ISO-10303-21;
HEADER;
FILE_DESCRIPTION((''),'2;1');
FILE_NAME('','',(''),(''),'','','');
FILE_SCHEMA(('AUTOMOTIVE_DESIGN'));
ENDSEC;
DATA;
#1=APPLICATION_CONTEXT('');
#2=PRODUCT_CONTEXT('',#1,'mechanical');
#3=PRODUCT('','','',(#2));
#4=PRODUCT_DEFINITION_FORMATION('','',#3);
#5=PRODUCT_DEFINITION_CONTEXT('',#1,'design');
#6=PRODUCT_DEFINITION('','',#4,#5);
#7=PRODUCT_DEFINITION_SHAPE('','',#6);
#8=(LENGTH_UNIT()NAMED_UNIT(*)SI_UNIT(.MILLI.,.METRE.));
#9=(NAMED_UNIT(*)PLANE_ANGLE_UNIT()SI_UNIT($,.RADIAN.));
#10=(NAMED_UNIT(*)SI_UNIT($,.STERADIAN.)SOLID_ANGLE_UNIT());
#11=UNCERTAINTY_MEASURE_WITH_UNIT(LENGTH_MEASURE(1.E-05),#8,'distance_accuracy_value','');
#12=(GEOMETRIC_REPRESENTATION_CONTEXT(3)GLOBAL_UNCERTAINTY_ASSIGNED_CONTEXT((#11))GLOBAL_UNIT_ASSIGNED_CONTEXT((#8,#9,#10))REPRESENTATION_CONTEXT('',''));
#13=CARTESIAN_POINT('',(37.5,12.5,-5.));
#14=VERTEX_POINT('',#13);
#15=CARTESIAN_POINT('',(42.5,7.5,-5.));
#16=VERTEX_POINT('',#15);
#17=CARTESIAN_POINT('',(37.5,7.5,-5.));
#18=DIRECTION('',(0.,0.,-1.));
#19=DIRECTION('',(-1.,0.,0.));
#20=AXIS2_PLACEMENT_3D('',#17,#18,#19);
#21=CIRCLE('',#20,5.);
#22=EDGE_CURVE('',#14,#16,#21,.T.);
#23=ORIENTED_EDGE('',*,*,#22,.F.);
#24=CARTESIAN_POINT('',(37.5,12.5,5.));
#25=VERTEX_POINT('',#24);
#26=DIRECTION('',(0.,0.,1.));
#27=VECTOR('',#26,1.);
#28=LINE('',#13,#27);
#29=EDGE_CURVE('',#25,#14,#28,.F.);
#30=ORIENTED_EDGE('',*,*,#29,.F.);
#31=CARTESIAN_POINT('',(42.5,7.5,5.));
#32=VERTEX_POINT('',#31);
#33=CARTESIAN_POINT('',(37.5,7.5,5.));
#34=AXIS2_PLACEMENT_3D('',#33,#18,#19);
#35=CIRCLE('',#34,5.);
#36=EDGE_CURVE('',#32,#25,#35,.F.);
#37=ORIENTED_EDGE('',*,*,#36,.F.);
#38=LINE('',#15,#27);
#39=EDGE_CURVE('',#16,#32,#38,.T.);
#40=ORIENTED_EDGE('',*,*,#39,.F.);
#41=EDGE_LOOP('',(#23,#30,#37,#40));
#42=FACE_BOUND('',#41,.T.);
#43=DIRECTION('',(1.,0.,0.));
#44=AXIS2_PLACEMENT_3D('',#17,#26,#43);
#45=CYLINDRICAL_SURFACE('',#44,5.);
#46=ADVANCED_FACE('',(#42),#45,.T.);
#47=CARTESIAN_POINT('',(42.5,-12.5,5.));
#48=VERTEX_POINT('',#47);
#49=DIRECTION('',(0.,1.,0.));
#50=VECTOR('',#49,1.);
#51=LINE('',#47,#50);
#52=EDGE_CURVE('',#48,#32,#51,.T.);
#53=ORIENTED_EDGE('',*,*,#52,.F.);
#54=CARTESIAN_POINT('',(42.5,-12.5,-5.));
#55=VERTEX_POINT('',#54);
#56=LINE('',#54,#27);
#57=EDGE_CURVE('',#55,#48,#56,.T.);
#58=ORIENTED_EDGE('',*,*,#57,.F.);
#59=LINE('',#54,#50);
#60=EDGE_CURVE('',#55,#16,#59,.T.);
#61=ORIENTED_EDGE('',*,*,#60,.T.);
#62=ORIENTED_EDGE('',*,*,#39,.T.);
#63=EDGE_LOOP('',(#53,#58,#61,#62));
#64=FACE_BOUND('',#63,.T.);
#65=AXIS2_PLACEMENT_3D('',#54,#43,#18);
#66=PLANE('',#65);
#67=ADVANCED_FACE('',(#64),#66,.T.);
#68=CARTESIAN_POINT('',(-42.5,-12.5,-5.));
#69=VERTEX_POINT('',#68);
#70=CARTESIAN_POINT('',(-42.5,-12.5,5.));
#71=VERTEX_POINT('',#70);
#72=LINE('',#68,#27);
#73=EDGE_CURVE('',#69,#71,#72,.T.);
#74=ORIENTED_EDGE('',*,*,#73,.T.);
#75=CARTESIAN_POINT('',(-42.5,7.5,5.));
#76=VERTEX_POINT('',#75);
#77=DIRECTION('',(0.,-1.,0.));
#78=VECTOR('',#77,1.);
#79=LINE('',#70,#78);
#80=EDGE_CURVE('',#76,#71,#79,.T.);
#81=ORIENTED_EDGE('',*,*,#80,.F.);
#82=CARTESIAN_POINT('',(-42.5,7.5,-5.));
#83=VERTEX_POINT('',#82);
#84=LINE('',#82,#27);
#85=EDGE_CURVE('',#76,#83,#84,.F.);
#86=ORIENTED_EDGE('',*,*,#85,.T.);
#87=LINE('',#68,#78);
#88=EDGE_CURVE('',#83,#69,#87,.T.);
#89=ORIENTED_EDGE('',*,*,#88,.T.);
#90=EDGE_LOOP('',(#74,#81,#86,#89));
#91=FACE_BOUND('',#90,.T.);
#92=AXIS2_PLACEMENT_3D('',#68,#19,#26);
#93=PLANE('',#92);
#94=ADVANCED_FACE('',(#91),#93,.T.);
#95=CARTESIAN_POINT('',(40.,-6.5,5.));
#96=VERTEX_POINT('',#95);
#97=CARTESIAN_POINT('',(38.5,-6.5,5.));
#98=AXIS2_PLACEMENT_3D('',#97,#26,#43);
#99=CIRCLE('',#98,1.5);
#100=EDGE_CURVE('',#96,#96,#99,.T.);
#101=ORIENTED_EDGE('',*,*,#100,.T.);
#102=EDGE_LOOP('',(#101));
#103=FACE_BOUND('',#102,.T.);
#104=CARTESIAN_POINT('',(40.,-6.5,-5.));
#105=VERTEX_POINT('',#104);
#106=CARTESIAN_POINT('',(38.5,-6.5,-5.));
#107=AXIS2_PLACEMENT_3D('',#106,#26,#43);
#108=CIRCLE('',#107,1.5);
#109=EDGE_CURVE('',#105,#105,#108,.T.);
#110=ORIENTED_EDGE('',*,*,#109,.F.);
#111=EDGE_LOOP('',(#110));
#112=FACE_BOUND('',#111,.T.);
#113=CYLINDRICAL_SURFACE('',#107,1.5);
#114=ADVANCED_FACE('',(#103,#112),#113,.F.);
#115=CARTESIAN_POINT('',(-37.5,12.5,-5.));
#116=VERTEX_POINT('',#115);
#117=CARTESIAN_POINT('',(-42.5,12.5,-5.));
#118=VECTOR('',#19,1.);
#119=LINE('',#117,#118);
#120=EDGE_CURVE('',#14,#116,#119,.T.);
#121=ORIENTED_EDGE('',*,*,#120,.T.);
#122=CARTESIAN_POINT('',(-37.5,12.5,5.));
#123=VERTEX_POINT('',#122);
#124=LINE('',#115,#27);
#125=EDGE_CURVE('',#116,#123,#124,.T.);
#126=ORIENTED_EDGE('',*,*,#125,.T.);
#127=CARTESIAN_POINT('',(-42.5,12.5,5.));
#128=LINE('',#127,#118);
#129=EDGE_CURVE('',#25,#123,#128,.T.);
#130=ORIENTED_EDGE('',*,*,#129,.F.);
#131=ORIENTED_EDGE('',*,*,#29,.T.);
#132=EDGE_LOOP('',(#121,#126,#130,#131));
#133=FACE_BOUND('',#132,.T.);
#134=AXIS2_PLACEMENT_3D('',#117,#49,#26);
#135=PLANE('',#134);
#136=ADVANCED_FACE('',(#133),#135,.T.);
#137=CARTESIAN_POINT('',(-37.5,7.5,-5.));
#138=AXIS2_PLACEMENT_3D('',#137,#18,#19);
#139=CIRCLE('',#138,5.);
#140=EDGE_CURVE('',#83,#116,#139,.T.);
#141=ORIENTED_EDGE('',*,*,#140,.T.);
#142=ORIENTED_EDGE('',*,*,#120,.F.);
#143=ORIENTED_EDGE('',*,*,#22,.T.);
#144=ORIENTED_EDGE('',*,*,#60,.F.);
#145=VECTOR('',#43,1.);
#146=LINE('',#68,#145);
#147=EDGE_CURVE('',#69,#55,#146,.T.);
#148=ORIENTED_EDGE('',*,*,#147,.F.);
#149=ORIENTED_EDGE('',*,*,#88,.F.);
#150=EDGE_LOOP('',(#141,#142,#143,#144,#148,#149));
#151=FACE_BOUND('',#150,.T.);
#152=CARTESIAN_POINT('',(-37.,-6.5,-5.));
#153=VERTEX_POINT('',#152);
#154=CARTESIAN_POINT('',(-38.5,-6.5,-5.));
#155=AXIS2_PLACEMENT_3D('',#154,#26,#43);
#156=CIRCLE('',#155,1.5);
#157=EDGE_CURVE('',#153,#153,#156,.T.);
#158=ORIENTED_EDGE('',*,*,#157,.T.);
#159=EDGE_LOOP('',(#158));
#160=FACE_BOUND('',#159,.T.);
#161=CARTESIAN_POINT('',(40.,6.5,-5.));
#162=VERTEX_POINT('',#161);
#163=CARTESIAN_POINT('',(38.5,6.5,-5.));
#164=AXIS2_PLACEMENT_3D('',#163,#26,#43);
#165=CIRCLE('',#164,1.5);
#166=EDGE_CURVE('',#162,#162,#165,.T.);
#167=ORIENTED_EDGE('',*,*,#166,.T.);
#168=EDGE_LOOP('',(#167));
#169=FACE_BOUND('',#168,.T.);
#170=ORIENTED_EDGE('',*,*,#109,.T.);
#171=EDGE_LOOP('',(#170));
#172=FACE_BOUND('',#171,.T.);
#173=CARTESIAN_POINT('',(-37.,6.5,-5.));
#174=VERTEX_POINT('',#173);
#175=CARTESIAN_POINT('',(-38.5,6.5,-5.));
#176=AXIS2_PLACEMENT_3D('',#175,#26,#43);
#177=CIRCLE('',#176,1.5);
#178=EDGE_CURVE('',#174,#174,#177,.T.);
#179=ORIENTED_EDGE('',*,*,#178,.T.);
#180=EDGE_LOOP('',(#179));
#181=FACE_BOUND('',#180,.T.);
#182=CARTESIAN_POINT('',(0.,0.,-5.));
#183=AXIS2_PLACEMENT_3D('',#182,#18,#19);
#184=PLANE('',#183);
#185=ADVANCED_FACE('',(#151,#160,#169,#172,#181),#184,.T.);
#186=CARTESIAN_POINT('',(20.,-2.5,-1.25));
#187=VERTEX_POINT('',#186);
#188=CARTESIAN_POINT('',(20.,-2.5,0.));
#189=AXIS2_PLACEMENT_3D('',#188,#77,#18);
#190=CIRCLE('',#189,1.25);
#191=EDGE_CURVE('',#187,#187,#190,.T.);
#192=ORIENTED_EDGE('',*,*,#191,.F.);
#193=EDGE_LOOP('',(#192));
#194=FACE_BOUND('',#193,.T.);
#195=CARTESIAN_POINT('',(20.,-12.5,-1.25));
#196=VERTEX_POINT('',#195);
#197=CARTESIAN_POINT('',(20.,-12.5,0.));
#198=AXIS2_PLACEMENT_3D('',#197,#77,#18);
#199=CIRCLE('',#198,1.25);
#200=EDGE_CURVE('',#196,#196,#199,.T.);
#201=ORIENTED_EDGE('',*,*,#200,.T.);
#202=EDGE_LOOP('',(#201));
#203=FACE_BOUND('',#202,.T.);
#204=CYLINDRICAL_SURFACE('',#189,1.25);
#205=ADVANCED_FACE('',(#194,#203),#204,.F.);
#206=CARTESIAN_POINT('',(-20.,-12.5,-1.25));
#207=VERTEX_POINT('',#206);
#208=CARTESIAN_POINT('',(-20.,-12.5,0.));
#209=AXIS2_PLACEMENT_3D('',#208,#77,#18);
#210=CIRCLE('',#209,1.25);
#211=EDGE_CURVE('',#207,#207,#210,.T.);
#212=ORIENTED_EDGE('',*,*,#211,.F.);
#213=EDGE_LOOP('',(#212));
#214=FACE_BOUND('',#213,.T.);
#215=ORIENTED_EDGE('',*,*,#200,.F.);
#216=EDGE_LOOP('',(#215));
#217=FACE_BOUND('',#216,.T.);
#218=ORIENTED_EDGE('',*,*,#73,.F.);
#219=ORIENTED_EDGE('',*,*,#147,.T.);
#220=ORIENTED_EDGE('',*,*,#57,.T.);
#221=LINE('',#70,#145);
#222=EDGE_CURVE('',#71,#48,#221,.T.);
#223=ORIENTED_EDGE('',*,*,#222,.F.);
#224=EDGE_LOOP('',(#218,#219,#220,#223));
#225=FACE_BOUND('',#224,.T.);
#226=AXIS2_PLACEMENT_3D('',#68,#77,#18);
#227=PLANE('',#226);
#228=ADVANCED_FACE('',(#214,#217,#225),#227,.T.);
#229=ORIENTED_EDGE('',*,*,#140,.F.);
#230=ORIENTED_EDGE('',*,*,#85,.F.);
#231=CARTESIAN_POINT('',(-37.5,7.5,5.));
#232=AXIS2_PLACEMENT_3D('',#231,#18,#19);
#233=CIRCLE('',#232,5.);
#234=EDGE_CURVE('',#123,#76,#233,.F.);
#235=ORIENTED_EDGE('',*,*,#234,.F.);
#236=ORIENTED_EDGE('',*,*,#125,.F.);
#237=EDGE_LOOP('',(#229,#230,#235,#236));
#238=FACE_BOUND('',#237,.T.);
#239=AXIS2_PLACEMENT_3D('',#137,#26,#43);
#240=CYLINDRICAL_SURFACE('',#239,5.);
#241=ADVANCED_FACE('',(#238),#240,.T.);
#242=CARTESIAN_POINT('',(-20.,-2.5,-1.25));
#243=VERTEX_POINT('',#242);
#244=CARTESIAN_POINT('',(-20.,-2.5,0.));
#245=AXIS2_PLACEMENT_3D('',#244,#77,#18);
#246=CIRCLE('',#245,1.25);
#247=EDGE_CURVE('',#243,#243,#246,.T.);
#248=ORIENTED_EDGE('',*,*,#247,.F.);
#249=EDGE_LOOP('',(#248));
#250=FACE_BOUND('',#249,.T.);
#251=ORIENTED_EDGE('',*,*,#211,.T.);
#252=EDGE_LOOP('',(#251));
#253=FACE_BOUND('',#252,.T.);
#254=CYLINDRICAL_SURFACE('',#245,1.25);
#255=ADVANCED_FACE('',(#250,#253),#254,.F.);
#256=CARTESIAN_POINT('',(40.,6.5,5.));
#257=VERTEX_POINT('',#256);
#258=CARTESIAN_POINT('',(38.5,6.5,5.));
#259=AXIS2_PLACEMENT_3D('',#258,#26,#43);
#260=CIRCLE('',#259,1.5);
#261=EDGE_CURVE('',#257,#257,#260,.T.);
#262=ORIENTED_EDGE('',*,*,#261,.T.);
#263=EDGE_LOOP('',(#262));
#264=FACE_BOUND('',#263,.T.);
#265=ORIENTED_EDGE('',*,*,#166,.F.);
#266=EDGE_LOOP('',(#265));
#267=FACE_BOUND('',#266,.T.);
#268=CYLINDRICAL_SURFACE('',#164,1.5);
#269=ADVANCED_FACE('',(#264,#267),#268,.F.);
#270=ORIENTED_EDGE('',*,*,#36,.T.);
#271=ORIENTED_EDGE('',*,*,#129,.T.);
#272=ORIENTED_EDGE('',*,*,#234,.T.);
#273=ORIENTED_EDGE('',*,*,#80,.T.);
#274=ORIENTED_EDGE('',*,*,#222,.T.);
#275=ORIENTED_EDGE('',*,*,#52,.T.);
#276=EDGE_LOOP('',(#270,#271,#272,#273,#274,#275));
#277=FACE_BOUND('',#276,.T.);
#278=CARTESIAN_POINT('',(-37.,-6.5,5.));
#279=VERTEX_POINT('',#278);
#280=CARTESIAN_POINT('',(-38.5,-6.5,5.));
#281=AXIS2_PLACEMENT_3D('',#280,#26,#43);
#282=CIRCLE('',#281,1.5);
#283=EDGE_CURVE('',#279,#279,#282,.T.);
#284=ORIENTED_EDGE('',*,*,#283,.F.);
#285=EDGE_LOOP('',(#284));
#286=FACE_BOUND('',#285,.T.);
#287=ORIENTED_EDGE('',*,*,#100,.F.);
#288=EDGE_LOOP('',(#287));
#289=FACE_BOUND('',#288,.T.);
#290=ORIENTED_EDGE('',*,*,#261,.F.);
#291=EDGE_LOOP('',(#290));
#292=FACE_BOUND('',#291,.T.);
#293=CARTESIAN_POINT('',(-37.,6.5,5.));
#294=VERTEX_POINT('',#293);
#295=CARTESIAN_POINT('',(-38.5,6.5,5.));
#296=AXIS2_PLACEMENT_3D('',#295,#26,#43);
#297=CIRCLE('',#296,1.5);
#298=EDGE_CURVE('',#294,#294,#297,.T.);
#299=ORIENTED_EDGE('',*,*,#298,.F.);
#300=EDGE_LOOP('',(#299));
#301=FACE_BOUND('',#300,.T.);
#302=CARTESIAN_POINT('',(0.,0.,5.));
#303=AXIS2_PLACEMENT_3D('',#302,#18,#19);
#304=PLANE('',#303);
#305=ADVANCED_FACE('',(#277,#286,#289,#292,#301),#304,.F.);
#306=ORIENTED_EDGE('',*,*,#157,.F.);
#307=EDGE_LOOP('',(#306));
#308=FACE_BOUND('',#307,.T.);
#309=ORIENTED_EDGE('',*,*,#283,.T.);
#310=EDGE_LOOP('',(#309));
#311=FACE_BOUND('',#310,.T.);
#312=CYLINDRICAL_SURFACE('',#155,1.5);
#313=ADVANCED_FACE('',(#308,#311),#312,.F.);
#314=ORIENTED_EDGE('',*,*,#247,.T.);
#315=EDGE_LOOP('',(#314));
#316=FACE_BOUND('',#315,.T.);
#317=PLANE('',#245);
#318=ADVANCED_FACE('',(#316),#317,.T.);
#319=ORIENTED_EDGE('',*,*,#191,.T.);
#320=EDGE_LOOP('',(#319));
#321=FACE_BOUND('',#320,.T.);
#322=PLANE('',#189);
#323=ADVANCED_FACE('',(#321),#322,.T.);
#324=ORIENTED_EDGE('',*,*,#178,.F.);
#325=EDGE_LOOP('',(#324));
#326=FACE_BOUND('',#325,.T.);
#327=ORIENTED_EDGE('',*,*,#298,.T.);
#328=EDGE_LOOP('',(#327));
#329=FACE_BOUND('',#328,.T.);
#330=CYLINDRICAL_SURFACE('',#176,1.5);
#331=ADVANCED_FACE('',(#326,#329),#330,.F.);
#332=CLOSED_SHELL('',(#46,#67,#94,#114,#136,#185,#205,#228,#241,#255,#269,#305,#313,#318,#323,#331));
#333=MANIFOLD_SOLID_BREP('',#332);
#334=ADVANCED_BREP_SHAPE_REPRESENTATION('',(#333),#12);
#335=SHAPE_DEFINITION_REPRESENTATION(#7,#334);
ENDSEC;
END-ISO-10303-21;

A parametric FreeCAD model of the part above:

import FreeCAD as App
import Part
import Sketcher
Q = App.Units.Quantity


def edges_at(feature, points):
    """Names of the edges that pass closest to the given points."""
    edges = feature.Shape.Edges
    near = lambda p: min(range(len(edges)), key=lambda i: edges[i].distToShape(Part.Vertex(*p))[0])
    return sorted({f"Edge{near(p) + 1}" for p in points})

doc = App.newDocument("Part")
body = doc.addObject("PartDesign::Body", "Body")

sketch1 = body.newObject("Sketcher::SketchObject", "Sketch")
sketch1.AttachmentSupport = (doc.getObject("XY_Plane"), [""])
sketch1.MapMode = "FlatFace"
sketch1.addGeometry([
    Part.LineSegment(App.Vector(-42, 12, 0), App.Vector(-42, -12, 0)),
    Part.LineSegment(App.Vector(-42, -12, 0), App.Vector(42, -12, 0)),
    Part.LineSegment(App.Vector(42, -12, 0), App.Vector(42, 12, 0)),
    Part.LineSegment(App.Vector(42, 12, 0), App.Vector(-42, 12, 0)),
], False)
sketch1.addConstraint([
    Sketcher.Constraint("Coincident", 0, 2, 1, 1),
    Sketcher.Constraint("Coincident", 1, 2, 2, 1),
    Sketcher.Constraint("Coincident", 2, 2, 3, 1),
    Sketcher.Constraint("Coincident", 3, 2, 0, 1),
    Sketcher.Constraint("Vertical", 0),
    Sketcher.Constraint("Horizontal", 1),
    Sketcher.Constraint("Vertical", 2),
    Sketcher.Constraint("Horizontal", 3),
    Sketcher.Constraint("Symmetric", 0, 2, 2, 2, -1, 1),
    Sketcher.Constraint("DistanceX", 1, 1, 1, 2, Q("85 mm")),
    Sketcher.Constraint("DistanceY", 0, 2, 0, 1, Q("25 mm")),
])
pad1 = body.newObject("PartDesign::Pad", "Pad")
pad1.Profile = sketch1
pad1.Type = "TwoLengths"
pad1.Length = 5
pad1.Length2 = 5

sketch2 = body.newObject("Sketcher::SketchObject", "Sketch001")
sketch2.AttachmentSupport = (doc.getObject("XY_Plane"), [""])
sketch2.MapMode = "FlatFace"
sketch2.AttachmentOffset = App.Placement(App.Vector(0, 0, 5), App.Rotation())
sketch2.addGeometry([
    Part.Circle(App.Vector(-38.5, 6.5, 0), App.Vector(0, 0, 1), 1.5),
    Part.Circle(App.Vector(38.5, 6.5, 0), App.Vector(0, 0, 1), 1.5),
    Part.Circle(App.Vector(38.5, -6.5, 0), App.Vector(0, 0, 1), 1.5),
    Part.Circle(App.Vector(-38.5, -6.5, 0), App.Vector(0, 0, 1), 1.5),
], False)
sketch2.addConstraint([
    Sketcher.Constraint("Equal", 0, 1),
    Sketcher.Constraint("Equal", 1, 2),
    Sketcher.Constraint("Equal", 2, 3),
    Sketcher.Constraint("Symmetric", 0, 3, 2, 3, -1, 1),
    Sketcher.Constraint("Symmetric", 1, 3, 3, 3, -1, 1),
    Sketcher.Constraint("Symmetric", 0, 3, 1, 3, -2),
    Sketcher.Constraint("Diameter", 0, Q("3 mm")),
    Sketcher.Constraint("DistanceX", 0, 3, 1, 3, Q("77 mm")),
    Sketcher.Constraint("DistanceY", 2, 3, 1, 3, Q("13 mm")),
])
pocket1 = body.newObject("PartDesign::Pocket", "Pocket")
pocket1.Profile = sketch2
pocket1.Type = "ThroughAll"

sketch3 = body.newObject("Sketcher::SketchObject", "Sketch002")
sketch3.AttachmentSupport = (doc.getObject("XZ_Plane"), [""])
sketch3.MapMode = "FlatFace"
sketch3.AttachmentOffset = App.Placement(App.Vector(0, 0, 12.5), App.Rotation())
sketch3.addGeometry([
    Part.Circle(App.Vector(-20, 0, 0), App.Vector(0, 0, 1), 1.2),
    Part.Circle(App.Vector(20, 0, 0), App.Vector(0, 0, 1), 1.2),
], False)
sketch3.addConstraint([
    Sketcher.Constraint("Equal", 0, 1),
    Sketcher.Constraint("Symmetric", 0, 3, 1, 3, -1, 1),
    Sketcher.Constraint("PointOnObject", 0, 3, -1),
    Sketcher.Constraint("Diameter", 0, Q("2.5 mm")),
    Sketcher.Constraint("DistanceX", 0, 3, -1, 1, Q("20 mm")),
])
pocket2 = body.newObject("PartDesign::Pocket", "Pocket001")
pocket2.Profile = sketch3
pocket2.Length = 10
doc.recompute()

fillet = body.newObject("PartDesign::Fillet", "Fillet")
fillet.Base = (pocket2, edges_at(pocket2, [(-42.5, 12.5, 0), (42.5, 12.5, 0)]))
fillet.Radius = 5

doc.recompute()
